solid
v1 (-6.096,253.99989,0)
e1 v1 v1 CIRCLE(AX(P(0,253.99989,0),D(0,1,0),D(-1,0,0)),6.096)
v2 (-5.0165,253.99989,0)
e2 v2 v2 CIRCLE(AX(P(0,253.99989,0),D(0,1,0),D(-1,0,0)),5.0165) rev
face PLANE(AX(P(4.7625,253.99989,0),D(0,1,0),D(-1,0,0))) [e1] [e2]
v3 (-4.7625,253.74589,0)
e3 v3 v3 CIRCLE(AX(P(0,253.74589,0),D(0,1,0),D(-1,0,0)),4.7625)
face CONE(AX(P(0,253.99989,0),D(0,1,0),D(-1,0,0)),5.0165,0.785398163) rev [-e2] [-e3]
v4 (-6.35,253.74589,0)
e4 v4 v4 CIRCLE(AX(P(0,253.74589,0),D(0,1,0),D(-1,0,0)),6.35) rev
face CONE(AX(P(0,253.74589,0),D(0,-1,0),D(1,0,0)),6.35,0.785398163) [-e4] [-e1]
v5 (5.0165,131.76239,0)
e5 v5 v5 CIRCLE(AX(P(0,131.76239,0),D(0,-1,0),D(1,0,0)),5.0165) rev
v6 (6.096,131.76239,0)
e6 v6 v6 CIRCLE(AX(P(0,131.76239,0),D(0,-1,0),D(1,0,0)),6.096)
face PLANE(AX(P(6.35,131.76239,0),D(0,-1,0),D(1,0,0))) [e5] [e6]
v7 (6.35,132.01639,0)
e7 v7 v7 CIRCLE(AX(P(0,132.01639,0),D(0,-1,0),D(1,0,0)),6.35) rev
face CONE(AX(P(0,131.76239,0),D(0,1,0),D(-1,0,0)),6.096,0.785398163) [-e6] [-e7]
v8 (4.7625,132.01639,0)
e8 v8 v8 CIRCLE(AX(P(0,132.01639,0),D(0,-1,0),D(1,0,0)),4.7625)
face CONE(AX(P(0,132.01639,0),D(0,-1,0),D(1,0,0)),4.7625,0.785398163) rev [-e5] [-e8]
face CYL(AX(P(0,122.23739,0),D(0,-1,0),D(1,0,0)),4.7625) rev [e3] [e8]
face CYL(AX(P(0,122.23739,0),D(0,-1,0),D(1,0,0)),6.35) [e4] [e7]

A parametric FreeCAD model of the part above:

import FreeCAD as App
import Part
import Sketcher

V = App.Vector
Q = App.Units.Quantity


def edges_at(feature, points):
    """Names of the edges that pass closest to the given points."""
    edges = feature.Shape.Edges
    near = lambda p: min(range(len(edges)), key=lambda i: edges[i].distToShape(Part.Vertex(*p))[0])
    return sorted({f"Edge{near(p) + 1}" for p in points})


def add_polygon(sketch, points):
    """Adds a closed chain of lines whose ends are joined by coincident constraints."""
    first, n = sketch.GeometryCount, len(points)
    for a, b in zip(points, points[1:] + points[:1]):
        sketch.addGeometry(Part.LineSegment(App.Vector(*a, 0), App.Vector(*b, 0)), False)
    for i in range(n):
        sketch.addConstraint(Sketcher.Constraint("Coincident", first + i, 2, first + (i + 1) % n, 1))

doc = App.newDocument("Part")
body = doc.addObject("PartDesign::Body", "Body")

# Sketch on XY plane
sketch1 = body.newObject("Sketcher::SketchObject", "Sketch")
sketch1.AttachmentSupport = (doc.getObject("XY_Plane"), [""])
sketch1.MapMode = "FlatFace"
add_polygon(sketch1, [(4.7625, 253.99989), (4.7625, 131.76239), (6.35, 131.76239), (6.35, 253.99989)])  # lines 0-3
sketch1.addConstraint([
    Sketcher.Constraint("Vertical", 0),
    Sketcher.Constraint("Horizontal", 1),
    Sketcher.Constraint("Vertical", 2),
    Sketcher.Constraint("Horizontal", 3),
    Sketcher.Constraint("DistanceX", 1, 1, 1, 2, Q("0.0625 in")),
    Sketcher.Constraint("DistanceY", 0, 2, 0, 1, Q("4.8125 in")),
    Sketcher.Constraint("DistanceX", -1, 1, 1, 2, Q("0.25 in")),
    Sketcher.Constraint("DistanceY", -1, 1, 0, 2, Q("131.76239 mm")),
])
revolution = body.newObject("PartDesign::Revolution", "Revolution")
revolution.Profile = sketch1
revolution.ReferenceAxis = (sketch1, ["V_Axis"])
revolution.Angle = 360
doc.recompute()

chamfer = body.newObject("PartDesign::Chamfer", "Chamfer")
chamfer.Base = (revolution, edges_at(revolution, [
    (-6.35, 131.762, 0),
    (-6.35, 254, 0),
    (-4.763, 254, 0),
    (-4.763, 131.762, 0),
]))
chamfer.Size = Q("0.01 in")

doc.recompute()
